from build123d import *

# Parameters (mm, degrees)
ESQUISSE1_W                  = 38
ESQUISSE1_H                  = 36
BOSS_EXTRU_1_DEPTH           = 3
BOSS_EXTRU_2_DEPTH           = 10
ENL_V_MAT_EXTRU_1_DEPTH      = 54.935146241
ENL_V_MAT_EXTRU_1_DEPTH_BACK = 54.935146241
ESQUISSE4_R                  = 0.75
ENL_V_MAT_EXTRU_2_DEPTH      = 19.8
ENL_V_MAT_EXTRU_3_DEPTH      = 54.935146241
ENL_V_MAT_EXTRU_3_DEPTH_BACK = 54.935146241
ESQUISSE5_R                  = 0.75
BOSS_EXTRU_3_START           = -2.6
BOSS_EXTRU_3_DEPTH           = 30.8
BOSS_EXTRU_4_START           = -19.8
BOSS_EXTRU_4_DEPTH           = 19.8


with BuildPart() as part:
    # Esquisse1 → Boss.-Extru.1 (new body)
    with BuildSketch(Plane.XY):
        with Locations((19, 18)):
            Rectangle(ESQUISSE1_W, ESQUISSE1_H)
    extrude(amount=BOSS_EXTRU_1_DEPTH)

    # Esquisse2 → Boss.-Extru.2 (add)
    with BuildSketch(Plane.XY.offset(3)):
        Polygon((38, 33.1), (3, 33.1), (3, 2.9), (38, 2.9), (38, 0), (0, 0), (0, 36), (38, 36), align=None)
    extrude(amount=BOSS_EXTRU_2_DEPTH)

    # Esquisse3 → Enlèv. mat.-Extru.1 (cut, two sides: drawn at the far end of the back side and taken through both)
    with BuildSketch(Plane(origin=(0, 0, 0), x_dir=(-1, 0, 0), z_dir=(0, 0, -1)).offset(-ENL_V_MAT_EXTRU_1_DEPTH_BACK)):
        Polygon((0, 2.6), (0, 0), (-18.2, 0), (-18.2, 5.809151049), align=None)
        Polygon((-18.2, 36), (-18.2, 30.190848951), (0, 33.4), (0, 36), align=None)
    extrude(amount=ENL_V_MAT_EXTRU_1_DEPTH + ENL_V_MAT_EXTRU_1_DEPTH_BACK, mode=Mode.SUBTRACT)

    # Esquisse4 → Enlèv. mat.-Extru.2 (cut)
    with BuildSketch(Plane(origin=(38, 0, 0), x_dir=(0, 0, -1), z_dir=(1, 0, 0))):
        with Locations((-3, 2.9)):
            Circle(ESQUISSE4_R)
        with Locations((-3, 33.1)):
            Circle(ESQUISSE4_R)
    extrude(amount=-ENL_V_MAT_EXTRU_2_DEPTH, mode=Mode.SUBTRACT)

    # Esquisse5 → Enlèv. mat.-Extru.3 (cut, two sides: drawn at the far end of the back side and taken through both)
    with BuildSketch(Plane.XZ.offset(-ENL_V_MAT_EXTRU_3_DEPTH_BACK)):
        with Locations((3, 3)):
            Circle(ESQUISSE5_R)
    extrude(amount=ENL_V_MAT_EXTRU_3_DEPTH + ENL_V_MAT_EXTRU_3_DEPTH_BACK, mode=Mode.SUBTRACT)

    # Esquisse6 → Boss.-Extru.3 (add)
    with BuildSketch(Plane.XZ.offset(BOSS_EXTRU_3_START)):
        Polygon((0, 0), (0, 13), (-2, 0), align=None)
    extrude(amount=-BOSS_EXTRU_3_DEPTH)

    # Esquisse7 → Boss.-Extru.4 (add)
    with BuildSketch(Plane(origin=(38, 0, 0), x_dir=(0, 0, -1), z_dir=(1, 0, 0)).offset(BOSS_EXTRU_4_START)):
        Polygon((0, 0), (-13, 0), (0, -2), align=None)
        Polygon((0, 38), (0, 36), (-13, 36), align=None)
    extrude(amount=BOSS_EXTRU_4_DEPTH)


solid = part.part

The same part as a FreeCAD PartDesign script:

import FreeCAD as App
import Part
import Sketcher

V = App.Vector
Q = App.Units.Quantity


def add_polygon(sketch, points):
    """Adds a closed chain of lines whose ends are joined by coincident constraints."""
    first, n = sketch.GeometryCount, len(points)
    for a, b in zip(points, points[1:] + points[:1]):
        sketch.addGeometry(Part.LineSegment(App.Vector(*a, 0), App.Vector(*b, 0)), False)
    for i in range(n):
        sketch.addConstraint(Sketcher.Constraint("Coincident", first + i, 2, first + (i + 1) % n, 1))

doc = App.newDocument("Part")
body = doc.addObject("PartDesign::Body", "Body")

sketch1 = doc.addObject("Sketcher::SketchObject", "Sketch")
body.addObject(sketch1)
sketch1.AttachmentSupport = (doc.XY_Plane, [""])
sketch1.MapMode = "FlatFace"
add_polygon(sketch1, [(0, 36), (0, 0), (38, 0), (38, 36)])
sketch1.addConstraint([
    Sketcher.Constraint("Vertical", 0),
    Sketcher.Constraint("Horizontal", 1),
    Sketcher.Constraint("Vertical", 2),
    Sketcher.Constraint("Horizontal", 3),
    Sketcher.Constraint("Coincident", 0, 2, -1, 1),
    Sketcher.Constraint("DistanceX", 1, 1, 1, 2, Q("38 mm")),
    Sketcher.Constraint("DistanceY", 0, 2, 0, 1, Q("36 mm")),
])
pad1 = doc.addObject("PartDesign::Pad", "Pad")
body.addObject(pad1)
pad1.Profile = sketch1
pad1.Length = 3

sketch2 = doc.addObject("Sketcher::SketchObject", "Sketch001")
body.addObject(sketch2)
sketch2.AttachmentSupport = (doc.XY_Plane, [""])
sketch2.MapMode = "FlatFace"
sketch2.AttachmentOffset = App.Placement(V(0, 0, 3), App.Rotation())
add_polygon(sketch2, [(3, 33.1), (38, 33.1), (38, 36), (0, 36), (0, 0), (38, 0), (38, 2.9), (3, 2.9)])
sketch2.addConstraint([
    Sketcher.Constraint("Horizontal", 0),
    Sketcher.Constraint("Vertical", 1),
    Sketcher.Constraint("Horizontal", 2),
    Sketcher.Constraint("Vertical", 3),
    Sketcher.Constraint("Horizontal", 4),
    Sketcher.Constraint("Vertical", 5),
    Sketcher.Constraint("Horizontal", 6),
    Sketcher.Constraint("Vertical", 7),
    Sketcher.Constraint("Coincident", 3, 2, -1, 1),
    Sketcher.Constraint("Vertical", 1, 2, 4, 2),
    Sketcher.Constraint("Equal", 1, 5),
    Sketcher.Constraint("DistanceX", 0, 1, 0, 2, Q("35 mm")),
    Sketcher.Constraint("DistanceX", 2, 2, 2, 1, Q("38 mm")),
    Sketcher.Constraint("DistanceY", 3, 2, 3, 1, Q("36 mm")),
    Sketcher.Constraint("DistanceY", 1, 1, 1, 2, Q("2.9 mm")),
])
pad2 = doc.addObject("PartDesign::Pad", "Pad001")
body.addObject(pad2)
pad2.Profile = sketch2
pad2.Length = 10

sketch3 = doc.addObject("Sketcher::SketchObject", "Sketch002")
body.addObject(sketch3)
sketch3.AttachmentSupport = (doc.XY_Plane, [""])
sketch3.MapMode = "FlatFace"
add_polygon(sketch3, [(0, 0), (0, 2.6), (18.2, 5.8), (18.2, 0)])
add_polygon(sketch3, [(18.2, 36), (18.2, 30.2), (0, 33.4), (0, 36)])
sketch3.addConstraint([
    Sketcher.Constraint("Vertical", 0),
    Sketcher.Constraint("Vertical", 2),
    Sketcher.Constraint("Horizontal", 3),
    Sketcher.Constraint("Vertical", 4),
    Sketcher.Constraint("Vertical", 6),
    Sketcher.Constraint("Horizontal", 7),
    Sketcher.Constraint("Coincident", 3, 2, -1, 1),
    Sketcher.Constraint("PointOnObject", 5, 2, -2),
    Sketcher.Constraint("Vertical", 2, 2, 4, 2),
    Sketcher.Constraint("Equal", 2, 4),
    Sketcher.Constraint("Equal", 0, 6),
    Sketcher.Constraint("Angle", 1, Q("10 deg")),
    Sketcher.Constraint("DistanceX", 3, 2, 3, 1, Q("18.2 mm")),
    Sketcher.Constraint("DistanceY", 0, 1, 0, 2, Q("2.6 mm")),
    Sketcher.Constraint("DistanceY", -1, 1, 6, 2, Q("36 mm")),
])
pocket1 = doc.addObject("PartDesign::Pocket", "Pocket")
body.addObject(pocket1)
pocket1.Profile = sketch3
pocket1.Type = "ThroughAll"
pocket1.Midplane = True

sketch4 = doc.addObject("Sketcher::SketchObject", "Sketch003")
body.addObject(sketch4)
sketch4.AttachmentSupport = (doc.YZ_Plane, [""])
sketch4.MapMode = "FlatFace"
sketch4.AttachmentOffset = App.Placement(V(0, 0, 38), App.Rotation())
sketch4.addGeometry([
    Part.Circle(V(2.9, 3, 0), V(0, 0, 1), 0.8),
    Part.Circle(V(33.1, 3, 0), V(0, 0, 1), 0.8),
], False)
sketch4.addConstraint([
    Sketcher.Constraint("Equal", 0, 1),
    Sketcher.Constraint("Horizontal", 0, 3, 1, 3),
    Sketcher.Constraint("Diameter", 0, Q("1.5 mm")),
    Sketcher.Constraint("DistanceY", -1, 1, 0, 3, Q("3 mm")),
    Sketcher.Constraint("DistanceX", -1, 1, 0, 3, Q("2.9 mm")),
    Sketcher.Constraint("DistanceX", -1, 1, 1, 3, Q("33.1 mm")),
])
pocket2 = doc.addObject("PartDesign::Pocket", "Pocket001")
body.addObject(pocket2)
pocket2.Profile = sketch4
pocket2.Length = 19.8

sketch5 = doc.addObject("Sketcher::SketchObject", "Sketch004")
body.addObject(sketch5)
sketch5.AttachmentSupport = (doc.XZ_Plane, [""])
sketch5.MapMode = "FlatFace"
sketch5.addGeometry(Part.Circle(V(3, 3, 0), V(0, 0, 1), 0.8), False)
sketch5.addConstraint([
    Sketcher.Constraint("Diameter", 0, Q("1.5 mm")),
    Sketcher.Constraint("DistanceX", -1, 1, 0, 3, Q("3 mm")),
    Sketcher.Constraint("DistanceY", -1, 1, 0, 3, Q("3 mm")),
])
pocket3 = doc.addObject("PartDesign::Pocket", "Pocket002")
body.addObject(pocket3)
pocket3.Profile = sketch5
pocket3.Type = "ThroughAll"
pocket3.Midplane = True

sketch6 = doc.addObject("Sketcher::SketchObject", "Sketch005")
body.addObject(sketch6)
sketch6.AttachmentSupport = (doc.XZ_Plane, [""])
sketch6.MapMode = "FlatFace"
sketch6.AttachmentOffset = App.Placement(V(0, 0, -2.6), App.Rotation())
add_polygon(sketch6, [(0, 0), (0, 13), (-2, 0)])
sketch6.addConstraint([
    Sketcher.Constraint("Vertical", 0),
    Sketcher.Constraint("Horizontal", 2),
    Sketcher.Constraint("Coincident", 2, 2, -1, 1),
    Sketcher.Constraint("DistanceX", 2, 1, 2, 2, Q("2 mm")),
    Sketcher.Constraint("DistanceY", 0, 1, 0, 2, Q("13 mm")),
])
pad3 = doc.addObject("PartDesign::Pad", "Pad002")
body.addObject(pad3)
pad3.Profile = sketch6
pad3.Length = 30.8
pad3.Reversed = True

sketch7 = doc.addObject("Sketcher::SketchObject", "Sketch006")
body.addObject(sketch7)
sketch7.AttachmentSupport = (doc.YZ_Plane, [""])
sketch7.MapMode = "FlatFace"
sketch7.AttachmentOffset = App.Placement(V(0, 0, 18.2), App.Rotation())
add_polygon(sketch7, [(0, 0), (0, 13), (-2, 0)])
add_polygon(sketch7, [(36, 0), (38, 0), (36, 13)])
sketch7.addConstraint([
    Sketcher.Constraint("Vertical", 0),
    Sketcher.Constraint("Horizontal", 2),
    Sketcher.Constraint("Horizontal", 3),
    Sketcher.Constraint("Vertical", 5),
    Sketcher.Constraint("Coincident", 2, 2, -1, 1),
    Sketcher.Constraint("PointOnObject", 3, 2, -1),
    Sketcher.Constraint("Horizontal", 0, 2, 4, 2),
    Sketcher.Constraint("Equal", 2, 3),
    Sketcher.Constraint("DistanceX", 2, 1, 2, 2, Q("2 mm")),
    Sketcher.Constraint("DistanceY", 0, 1, 0, 2, Q("13 mm")),
    Sketcher.Constraint("DistanceX", -1, 1, 3, 2, Q("38 mm")),
])
pad4 = doc.addObject("PartDesign::Pad", "Pad003")
body.addObject(pad4)
pad4.Profile = sketch7
pad4.Length = 19.8

doc.recompute()
